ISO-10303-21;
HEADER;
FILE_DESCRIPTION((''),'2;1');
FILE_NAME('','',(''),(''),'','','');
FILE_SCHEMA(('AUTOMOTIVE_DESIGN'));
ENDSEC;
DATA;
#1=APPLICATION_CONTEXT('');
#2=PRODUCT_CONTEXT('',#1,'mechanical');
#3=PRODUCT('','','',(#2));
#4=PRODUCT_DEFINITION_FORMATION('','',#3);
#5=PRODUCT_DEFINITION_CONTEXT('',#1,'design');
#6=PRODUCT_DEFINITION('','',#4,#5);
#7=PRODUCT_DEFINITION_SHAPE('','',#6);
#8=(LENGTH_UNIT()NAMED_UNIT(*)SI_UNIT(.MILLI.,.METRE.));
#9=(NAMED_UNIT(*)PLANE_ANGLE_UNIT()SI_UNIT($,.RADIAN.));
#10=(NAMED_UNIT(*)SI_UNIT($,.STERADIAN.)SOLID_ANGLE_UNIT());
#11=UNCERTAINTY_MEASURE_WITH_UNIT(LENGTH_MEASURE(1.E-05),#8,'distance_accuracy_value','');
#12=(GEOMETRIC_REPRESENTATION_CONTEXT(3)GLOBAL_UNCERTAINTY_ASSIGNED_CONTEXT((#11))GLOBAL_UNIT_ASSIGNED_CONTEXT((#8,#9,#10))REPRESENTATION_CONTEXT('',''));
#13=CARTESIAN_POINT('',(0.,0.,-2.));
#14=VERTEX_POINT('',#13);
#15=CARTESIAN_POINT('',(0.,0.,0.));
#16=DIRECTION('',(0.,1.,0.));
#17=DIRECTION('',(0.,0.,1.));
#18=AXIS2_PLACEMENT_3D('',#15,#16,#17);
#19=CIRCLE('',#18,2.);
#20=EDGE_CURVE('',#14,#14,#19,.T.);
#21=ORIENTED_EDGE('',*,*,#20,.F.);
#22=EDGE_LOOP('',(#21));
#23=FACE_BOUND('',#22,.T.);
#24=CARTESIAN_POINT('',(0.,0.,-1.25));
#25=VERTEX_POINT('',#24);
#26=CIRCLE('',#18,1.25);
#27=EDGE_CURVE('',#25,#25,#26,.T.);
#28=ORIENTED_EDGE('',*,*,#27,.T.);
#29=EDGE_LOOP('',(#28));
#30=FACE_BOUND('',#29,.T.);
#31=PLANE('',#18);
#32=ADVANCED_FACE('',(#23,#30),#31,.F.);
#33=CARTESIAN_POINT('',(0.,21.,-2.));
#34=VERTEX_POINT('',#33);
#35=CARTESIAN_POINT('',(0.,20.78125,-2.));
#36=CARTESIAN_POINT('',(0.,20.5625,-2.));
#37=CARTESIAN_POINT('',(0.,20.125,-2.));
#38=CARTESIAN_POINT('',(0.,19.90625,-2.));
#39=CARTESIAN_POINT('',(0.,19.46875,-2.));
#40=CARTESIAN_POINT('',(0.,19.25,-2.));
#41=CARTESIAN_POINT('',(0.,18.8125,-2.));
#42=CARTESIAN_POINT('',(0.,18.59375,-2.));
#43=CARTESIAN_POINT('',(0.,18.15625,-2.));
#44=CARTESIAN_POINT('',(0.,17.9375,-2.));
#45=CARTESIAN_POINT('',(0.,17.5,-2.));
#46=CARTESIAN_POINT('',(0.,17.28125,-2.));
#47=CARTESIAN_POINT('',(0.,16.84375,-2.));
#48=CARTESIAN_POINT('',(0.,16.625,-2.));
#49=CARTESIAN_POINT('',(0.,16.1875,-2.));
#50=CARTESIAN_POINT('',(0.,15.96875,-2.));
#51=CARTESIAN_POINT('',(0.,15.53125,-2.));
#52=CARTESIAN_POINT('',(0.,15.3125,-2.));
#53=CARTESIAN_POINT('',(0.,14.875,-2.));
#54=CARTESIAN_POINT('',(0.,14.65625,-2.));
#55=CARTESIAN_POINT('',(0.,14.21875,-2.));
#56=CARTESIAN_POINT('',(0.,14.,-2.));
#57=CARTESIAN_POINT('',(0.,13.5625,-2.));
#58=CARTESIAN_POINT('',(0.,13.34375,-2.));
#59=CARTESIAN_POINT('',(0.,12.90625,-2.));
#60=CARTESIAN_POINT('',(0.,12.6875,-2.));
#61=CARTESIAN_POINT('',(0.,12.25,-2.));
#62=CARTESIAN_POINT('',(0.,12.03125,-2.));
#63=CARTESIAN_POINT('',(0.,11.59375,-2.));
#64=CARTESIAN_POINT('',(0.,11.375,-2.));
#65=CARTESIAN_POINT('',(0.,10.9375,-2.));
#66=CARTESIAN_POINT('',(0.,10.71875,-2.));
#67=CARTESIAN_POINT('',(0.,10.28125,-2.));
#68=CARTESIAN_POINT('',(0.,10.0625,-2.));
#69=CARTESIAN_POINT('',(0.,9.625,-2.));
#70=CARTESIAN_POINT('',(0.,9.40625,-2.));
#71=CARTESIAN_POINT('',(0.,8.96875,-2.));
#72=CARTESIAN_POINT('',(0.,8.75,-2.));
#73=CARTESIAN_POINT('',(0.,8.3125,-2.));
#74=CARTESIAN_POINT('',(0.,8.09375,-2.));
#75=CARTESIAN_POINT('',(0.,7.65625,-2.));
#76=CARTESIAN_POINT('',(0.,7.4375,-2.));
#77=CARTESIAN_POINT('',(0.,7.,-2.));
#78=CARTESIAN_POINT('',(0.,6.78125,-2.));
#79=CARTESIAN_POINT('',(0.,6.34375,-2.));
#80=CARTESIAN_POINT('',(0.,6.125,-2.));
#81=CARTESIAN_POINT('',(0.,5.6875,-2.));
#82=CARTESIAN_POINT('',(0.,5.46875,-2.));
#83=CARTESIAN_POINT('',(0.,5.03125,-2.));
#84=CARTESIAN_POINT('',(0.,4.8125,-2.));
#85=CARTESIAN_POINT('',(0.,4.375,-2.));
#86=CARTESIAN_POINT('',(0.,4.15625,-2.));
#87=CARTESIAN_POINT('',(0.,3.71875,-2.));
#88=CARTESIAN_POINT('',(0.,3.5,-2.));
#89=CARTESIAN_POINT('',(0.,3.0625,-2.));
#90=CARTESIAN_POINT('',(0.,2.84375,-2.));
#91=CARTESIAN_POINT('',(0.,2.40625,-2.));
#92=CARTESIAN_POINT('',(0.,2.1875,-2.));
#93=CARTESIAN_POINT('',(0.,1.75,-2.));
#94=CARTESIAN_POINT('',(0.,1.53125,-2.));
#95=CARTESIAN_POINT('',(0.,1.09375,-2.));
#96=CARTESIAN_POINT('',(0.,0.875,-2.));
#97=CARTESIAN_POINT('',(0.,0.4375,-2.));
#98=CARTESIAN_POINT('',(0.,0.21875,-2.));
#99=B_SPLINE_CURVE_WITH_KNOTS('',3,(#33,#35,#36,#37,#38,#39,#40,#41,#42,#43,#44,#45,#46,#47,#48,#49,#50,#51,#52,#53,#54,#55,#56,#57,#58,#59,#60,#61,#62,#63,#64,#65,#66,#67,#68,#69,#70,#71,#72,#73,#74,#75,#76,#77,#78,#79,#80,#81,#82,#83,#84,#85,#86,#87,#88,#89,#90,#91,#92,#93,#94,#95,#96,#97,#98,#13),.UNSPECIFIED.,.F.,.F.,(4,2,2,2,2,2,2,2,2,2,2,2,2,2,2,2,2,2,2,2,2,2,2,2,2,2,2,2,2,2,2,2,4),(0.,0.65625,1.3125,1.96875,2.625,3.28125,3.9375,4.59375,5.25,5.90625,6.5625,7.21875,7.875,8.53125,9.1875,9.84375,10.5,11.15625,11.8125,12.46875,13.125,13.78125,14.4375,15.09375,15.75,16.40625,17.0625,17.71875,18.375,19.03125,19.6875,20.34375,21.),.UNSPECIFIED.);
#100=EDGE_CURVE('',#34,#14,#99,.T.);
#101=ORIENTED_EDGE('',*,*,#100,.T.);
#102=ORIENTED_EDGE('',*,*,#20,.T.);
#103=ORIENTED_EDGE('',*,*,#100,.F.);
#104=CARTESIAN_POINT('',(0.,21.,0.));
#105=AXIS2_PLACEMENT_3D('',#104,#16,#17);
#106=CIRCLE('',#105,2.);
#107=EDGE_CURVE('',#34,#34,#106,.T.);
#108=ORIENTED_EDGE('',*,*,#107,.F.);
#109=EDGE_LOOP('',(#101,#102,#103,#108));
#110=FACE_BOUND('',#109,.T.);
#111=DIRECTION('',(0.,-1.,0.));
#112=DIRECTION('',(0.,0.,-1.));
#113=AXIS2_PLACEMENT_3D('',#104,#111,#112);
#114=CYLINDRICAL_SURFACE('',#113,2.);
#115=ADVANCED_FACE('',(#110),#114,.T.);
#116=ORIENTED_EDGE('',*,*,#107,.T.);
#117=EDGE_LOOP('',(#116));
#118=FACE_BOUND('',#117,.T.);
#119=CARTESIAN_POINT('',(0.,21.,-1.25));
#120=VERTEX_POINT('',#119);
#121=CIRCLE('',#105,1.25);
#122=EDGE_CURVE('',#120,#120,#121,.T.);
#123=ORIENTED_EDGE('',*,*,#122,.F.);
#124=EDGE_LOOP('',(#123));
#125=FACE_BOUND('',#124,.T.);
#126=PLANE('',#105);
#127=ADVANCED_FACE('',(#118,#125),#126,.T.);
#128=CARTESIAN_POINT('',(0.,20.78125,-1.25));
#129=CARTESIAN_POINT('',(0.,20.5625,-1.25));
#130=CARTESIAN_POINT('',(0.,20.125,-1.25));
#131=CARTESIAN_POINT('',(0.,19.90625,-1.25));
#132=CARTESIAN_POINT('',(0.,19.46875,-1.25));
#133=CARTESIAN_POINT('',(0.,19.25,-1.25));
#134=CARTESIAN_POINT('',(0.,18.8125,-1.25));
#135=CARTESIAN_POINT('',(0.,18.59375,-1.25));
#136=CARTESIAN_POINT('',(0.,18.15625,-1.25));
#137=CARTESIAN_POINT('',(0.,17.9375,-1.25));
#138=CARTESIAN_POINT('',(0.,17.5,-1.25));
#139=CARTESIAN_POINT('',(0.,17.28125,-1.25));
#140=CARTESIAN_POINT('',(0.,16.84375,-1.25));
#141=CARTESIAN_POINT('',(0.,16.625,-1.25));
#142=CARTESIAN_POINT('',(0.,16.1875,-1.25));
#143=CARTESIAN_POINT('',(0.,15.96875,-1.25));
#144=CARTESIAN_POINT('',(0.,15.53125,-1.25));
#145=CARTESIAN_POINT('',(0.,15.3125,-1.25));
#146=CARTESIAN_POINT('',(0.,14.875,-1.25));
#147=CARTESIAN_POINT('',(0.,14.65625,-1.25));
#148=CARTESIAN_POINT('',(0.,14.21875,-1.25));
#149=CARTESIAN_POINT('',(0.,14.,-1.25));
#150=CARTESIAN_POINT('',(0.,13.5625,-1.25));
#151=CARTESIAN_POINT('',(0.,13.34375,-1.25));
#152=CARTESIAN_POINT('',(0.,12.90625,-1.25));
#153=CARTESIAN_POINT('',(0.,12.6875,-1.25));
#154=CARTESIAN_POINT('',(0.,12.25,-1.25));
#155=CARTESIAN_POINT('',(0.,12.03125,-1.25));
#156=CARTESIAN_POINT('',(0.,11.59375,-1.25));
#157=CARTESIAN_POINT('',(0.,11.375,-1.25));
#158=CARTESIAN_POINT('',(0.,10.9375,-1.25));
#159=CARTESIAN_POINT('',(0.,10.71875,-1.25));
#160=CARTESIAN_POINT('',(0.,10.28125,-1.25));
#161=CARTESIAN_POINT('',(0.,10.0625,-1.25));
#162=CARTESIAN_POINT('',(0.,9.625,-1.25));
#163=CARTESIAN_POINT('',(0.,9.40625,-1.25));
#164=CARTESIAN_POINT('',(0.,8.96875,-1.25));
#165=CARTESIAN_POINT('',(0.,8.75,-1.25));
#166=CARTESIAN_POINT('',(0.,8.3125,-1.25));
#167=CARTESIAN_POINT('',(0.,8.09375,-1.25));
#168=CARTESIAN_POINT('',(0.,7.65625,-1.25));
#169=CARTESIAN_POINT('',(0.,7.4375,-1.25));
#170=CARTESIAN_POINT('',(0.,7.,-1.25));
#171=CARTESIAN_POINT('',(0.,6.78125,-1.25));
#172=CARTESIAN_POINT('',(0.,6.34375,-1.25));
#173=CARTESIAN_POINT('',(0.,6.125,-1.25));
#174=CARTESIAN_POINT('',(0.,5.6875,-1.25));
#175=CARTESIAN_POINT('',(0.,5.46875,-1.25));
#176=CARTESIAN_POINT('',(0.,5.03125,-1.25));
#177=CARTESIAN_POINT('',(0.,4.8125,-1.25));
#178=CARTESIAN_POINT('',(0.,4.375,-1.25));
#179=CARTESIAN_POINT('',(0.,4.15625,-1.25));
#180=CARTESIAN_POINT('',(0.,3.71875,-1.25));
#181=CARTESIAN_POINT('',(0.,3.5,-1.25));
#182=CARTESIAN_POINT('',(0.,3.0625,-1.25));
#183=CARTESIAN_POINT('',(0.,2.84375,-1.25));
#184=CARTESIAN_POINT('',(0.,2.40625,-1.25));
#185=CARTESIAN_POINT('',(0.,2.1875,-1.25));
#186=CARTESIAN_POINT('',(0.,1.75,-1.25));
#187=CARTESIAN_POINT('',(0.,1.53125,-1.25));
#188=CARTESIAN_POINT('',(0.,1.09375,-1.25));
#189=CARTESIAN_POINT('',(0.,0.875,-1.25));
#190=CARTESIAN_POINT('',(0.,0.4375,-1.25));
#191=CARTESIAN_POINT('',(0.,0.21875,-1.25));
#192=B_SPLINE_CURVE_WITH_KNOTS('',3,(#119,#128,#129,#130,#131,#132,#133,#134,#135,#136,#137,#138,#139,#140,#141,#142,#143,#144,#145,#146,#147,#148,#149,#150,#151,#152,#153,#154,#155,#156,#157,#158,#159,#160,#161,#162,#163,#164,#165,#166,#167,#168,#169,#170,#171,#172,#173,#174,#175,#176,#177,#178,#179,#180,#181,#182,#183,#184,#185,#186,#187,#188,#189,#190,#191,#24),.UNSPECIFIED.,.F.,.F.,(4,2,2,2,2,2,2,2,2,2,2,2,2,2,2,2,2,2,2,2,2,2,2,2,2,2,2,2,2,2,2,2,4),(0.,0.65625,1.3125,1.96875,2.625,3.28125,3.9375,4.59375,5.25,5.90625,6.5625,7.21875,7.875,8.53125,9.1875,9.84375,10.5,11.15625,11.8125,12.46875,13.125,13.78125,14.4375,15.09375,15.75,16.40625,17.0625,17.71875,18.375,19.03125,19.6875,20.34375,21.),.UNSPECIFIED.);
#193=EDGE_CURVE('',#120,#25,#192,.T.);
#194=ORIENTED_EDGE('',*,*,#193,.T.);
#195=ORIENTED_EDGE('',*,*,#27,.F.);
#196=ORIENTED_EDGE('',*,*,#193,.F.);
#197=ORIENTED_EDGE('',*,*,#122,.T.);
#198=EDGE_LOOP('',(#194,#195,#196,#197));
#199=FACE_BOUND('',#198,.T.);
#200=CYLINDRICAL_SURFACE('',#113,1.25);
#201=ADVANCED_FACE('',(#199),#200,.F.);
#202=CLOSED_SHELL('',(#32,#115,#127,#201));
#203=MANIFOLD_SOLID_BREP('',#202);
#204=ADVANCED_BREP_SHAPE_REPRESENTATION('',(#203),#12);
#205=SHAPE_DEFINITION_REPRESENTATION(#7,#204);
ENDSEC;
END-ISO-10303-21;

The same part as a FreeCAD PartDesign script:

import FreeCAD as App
import Part
import Sketcher

V = App.Vector
Q = App.Units.Quantity

doc = App.newDocument("Part")
body = doc.addObject("PartDesign::Body", "Body")

sketch1 = doc.addObject("Sketcher::SketchObject", "Sketch")
body.addObject(sketch1)
sketch1.AttachmentSupport = (doc.XZ_Plane, [""])
sketch1.MapMode = "FlatFace"
sketch1.addGeometry([
    Part.Circle(V(0, 0, 0), V(0, 0, 1), 2),
    Part.Circle(V(0, 0, 0), V(0, 0, 1), 1.2),
], False)
sketch1.addConstraint([
    Sketcher.Constraint("Coincident", 0, 3, -1, 1),
    Sketcher.Constraint("Coincident", 1, 3, -1, 1),
    Sketcher.Constraint("Diameter", 0, Q("4 mm")),
    Sketcher.Constraint("Diameter", 1, Q("2.5 mm")),
])
pad1 = doc.addObject("PartDesign::Pad", "Pad")
body.addObject(pad1)
pad1.Profile = sketch1
pad1.Length = 21
pad1.Reversed = True

doc.recompute()
